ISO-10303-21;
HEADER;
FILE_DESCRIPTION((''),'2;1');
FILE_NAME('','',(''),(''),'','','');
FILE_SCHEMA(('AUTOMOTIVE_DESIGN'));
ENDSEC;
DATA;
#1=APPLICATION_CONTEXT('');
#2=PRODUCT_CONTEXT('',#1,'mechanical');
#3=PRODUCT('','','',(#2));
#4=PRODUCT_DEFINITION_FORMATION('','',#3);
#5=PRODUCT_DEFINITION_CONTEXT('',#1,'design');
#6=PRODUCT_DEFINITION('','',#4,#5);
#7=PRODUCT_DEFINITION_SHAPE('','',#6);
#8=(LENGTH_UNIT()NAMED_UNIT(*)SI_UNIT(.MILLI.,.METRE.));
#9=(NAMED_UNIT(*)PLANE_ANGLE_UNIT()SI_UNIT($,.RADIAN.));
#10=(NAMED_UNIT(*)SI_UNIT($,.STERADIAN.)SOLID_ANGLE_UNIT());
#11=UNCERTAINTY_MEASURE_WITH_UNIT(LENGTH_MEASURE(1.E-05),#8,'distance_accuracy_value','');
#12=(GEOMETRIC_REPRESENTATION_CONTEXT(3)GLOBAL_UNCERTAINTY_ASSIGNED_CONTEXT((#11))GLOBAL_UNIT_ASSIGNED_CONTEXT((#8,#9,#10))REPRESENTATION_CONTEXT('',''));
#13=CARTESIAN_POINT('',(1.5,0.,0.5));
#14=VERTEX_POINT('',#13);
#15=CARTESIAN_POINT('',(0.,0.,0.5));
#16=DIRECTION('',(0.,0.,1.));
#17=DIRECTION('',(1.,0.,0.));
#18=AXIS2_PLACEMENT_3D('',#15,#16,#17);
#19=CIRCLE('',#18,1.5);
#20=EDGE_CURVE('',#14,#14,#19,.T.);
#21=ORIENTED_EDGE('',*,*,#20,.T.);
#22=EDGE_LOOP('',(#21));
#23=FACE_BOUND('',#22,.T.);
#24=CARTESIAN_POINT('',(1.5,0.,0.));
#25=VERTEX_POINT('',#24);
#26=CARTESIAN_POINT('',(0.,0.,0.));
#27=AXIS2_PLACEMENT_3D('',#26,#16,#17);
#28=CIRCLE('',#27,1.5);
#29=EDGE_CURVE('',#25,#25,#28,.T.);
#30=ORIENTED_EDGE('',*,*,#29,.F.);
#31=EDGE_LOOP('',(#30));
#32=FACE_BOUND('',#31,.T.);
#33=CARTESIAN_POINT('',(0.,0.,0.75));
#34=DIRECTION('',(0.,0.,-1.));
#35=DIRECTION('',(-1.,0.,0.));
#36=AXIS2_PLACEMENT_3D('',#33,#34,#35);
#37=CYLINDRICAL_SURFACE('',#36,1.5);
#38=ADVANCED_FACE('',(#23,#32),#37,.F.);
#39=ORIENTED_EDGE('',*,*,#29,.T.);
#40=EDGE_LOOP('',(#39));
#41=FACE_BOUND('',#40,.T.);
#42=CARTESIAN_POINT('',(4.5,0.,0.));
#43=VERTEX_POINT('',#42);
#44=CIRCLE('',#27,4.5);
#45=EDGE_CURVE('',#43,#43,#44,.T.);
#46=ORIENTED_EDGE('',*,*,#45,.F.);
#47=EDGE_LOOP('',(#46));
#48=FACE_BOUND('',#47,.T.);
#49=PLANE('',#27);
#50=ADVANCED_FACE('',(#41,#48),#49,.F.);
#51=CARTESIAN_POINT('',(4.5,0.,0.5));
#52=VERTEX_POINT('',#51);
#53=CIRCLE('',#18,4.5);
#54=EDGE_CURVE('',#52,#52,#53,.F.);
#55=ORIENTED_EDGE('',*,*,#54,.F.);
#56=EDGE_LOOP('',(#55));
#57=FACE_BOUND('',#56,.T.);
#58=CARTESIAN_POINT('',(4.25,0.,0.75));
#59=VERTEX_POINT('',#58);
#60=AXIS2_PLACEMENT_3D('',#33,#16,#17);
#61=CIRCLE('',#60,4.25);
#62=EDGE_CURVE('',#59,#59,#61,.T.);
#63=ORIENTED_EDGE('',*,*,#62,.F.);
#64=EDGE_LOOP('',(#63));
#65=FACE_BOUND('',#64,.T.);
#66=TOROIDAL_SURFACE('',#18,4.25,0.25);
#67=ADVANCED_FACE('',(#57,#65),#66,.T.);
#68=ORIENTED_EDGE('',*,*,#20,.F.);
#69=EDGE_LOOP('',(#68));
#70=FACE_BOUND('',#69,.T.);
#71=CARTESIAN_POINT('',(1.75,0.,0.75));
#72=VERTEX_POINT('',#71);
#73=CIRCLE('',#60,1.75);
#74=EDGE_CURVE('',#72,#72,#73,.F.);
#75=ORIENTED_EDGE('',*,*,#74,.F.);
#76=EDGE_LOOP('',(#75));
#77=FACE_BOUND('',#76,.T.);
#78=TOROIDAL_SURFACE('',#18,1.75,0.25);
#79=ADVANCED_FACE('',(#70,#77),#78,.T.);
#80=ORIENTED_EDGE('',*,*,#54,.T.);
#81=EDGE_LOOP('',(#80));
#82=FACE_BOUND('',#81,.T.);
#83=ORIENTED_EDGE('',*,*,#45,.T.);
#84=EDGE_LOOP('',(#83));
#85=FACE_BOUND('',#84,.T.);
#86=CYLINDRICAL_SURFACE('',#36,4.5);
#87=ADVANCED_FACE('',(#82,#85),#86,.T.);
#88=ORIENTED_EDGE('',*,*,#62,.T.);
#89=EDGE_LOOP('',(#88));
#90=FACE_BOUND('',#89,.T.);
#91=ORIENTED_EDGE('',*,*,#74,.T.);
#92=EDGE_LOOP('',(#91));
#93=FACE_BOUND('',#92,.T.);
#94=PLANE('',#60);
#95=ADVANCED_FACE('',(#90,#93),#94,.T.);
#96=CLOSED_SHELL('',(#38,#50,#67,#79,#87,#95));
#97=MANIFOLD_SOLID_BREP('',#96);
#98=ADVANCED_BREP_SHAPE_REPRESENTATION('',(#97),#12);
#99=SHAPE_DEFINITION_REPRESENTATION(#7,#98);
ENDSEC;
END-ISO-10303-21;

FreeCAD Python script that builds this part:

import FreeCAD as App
import Part
import Sketcher


def edges_at(feature, points):
    """Names of the edges that pass closest to the given points."""
    edges = feature.Shape.Edges
    near = lambda p: min(range(len(edges)), key=lambda i: edges[i].distToShape(Part.Vertex(*p))[0])
    return sorted({f"Edge{near(p) + 1}" for p in points})

doc = App.newDocument("Part")
params = doc.addObject("Spreadsheet::Sheet", "Params")
for row, (alias, value) in enumerate([
    ("sketch1_diameter", "9 mm"),
    ("sketch1_diameter2", "3 mm"),
    ("pad1_length", "0.75 mm"),
    ("fillet_radius", "0.25 mm"),
], start=1):
    params.set(f"A{row}", alias)
    params.set(f"B{row}", "=" + value)
    params.setAlias(f"B{row}", alias)

body = doc.addObject("PartDesign::Body", "Body")

# Sketch on XY plane
sketch1 = body.newObject("Sketcher::SketchObject", "Sketch")
sketch1.AttachmentSupport = (doc.getObject("XY_Plane"), [""])
sketch1.MapMode = "FlatFace"
sketch1.addGeometry([
    Part.Circle(App.Vector(0, 0, 0), App.Vector(0, 0, 1), 4.5),
    Part.Circle(App.Vector(0, 0, 0), App.Vector(0, 0, 1), 1.5),
], False)
sketch1.addConstraint([
    Sketcher.Constraint("Coincident", 0, 3, -1, 1),
    Sketcher.Constraint("Coincident", 1, 3, -1, 1),
    Sketcher.Constraint("Diameter", 0, 9.0),
    Sketcher.Constraint("Diameter", 1, 3.0),
])
sketch1.setExpression("Constraints[2]", "Params.sketch1_diameter")
sketch1.setExpression("Constraints[3]", "Params.sketch1_diameter2")
pad1 = body.newObject("PartDesign::Pad", "Pad")
pad1.Profile = sketch1
pad1.setExpression("Length", "Params.pad1_length")
doc.recompute()

fillet = body.newObject("PartDesign::Fillet", "Fillet")
fillet.Base = (pad1, edges_at(pad1, [(-4.5, 0, 0.75), (-1.5, 0, 0.75)]))
fillet.setExpression("Radius", "Params.fillet_radius")

doc.recompute()
